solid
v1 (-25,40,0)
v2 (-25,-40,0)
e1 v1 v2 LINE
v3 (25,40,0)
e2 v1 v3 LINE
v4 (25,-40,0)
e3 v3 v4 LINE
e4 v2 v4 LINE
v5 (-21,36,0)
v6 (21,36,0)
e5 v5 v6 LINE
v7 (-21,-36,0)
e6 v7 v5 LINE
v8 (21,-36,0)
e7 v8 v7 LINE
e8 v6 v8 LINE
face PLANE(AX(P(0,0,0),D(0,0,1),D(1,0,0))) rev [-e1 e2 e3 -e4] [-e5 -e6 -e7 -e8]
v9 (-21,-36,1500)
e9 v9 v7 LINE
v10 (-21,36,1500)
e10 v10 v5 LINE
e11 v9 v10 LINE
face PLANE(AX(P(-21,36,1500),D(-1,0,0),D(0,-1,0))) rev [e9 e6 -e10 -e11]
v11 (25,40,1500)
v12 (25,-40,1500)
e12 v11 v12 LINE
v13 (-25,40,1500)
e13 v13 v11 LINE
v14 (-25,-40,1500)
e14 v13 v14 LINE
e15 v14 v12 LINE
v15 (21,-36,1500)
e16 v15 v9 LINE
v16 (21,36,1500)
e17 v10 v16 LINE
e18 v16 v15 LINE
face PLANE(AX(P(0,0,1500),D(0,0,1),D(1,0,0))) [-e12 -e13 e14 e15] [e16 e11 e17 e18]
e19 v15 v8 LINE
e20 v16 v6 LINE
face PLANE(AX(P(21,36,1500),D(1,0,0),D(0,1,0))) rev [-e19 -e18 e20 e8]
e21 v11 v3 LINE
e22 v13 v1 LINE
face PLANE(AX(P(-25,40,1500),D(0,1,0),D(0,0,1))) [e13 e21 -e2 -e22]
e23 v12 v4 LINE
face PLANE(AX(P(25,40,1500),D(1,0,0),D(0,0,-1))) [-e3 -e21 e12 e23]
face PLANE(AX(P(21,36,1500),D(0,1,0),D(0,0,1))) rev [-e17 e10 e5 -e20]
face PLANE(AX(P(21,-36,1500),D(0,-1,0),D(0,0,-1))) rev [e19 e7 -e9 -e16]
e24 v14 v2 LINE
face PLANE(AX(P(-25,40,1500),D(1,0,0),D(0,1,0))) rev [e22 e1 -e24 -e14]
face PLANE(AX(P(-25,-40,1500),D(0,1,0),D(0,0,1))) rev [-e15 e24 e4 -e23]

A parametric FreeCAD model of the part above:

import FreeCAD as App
import Part
import Sketcher
from FreeCAD import Vector

doc = App.newDocument("Part")
body = doc.addObject("PartDesign::Body", "Body")

sketch1 = body.newObject("Sketcher::SketchObject", "Sketch")
sketch1.AttachmentSupport = (doc.getObject("XY_Plane"), [""])
sketch1.MapMode = "FlatFace"
sketch1.addGeometry([
    Part.LineSegment(Vector(-25, 40, 0), Vector(-25, -40, 0)),
    Part.LineSegment(Vector(-25, -40, 0), Vector(25, -40, 0)),
    Part.LineSegment(Vector(25, -40, 0), Vector(25, 40, 0)),
    Part.LineSegment(Vector(25, 40, 0), Vector(-25, 40, 0)),
], False)
sketch1.addConstraint([
    Sketcher.Constraint("Coincident", 0, 2, 1, 1),
    Sketcher.Constraint("Coincident", 1, 2, 2, 1),
    Sketcher.Constraint("Coincident", 2, 2, 3, 1),
    Sketcher.Constraint("Coincident", 3, 2, 0, 1),
    Sketcher.Constraint("Vertical", 0),
    Sketcher.Constraint("Horizontal", 1),
    Sketcher.Constraint("Vertical", 2),
    Sketcher.Constraint("Horizontal", 3),
    Sketcher.Constraint("Symmetric", 0, 2, 2, 2, -1, 1),
    Sketcher.Constraint("DistanceX", 1, 1, 1, 2, 50.0),
    Sketcher.Constraint("DistanceY", 0, 2, 0, 1, 80.0),
])
pad1 = body.newObject("PartDesign::Pad", "Pad")
pad1.Profile = sketch1
pad1.Length = 1500

sketch2 = body.newObject("Sketcher::SketchObject", "Sketch001")
sketch2.AttachmentSupport = (doc.getObject("XY_Plane"), [""])
sketch2.MapMode = "FlatFace"
sketch2.addGeometry([
    Part.LineSegment(Vector(21, 36, 0), Vector(21, -36, 0)),
    Part.LineSegment(Vector(21, -36, 0), Vector(-21, -36, 0)),
    Part.LineSegment(Vector(-21, -36, 0), Vector(-21, 36, 0)),
    Part.LineSegment(Vector(-21, 36, 0), Vector(21, 36, 0)),
], False)
sketch2.addConstraint([
    Sketcher.Constraint("Coincident", 0, 2, 1, 1),
    Sketcher.Constraint("Coincident", 1, 2, 2, 1),
    Sketcher.Constraint("Coincident", 2, 2, 3, 1),
    Sketcher.Constraint("Coincident", 3, 2, 0, 1),
    Sketcher.Constraint("Vertical", 0),
    Sketcher.Constraint("Horizontal", 1),
    Sketcher.Constraint("Vertical", 2),
    Sketcher.Constraint("Horizontal", 3),
    Sketcher.Constraint("Symmetric", 0, 2, 2, 2, -1, 1),
    Sketcher.Constraint("DistanceX", 1, 2, 1, 1, 42.0),
    Sketcher.Constraint("DistanceY", 0, 2, 0, 1, 72.0),
])
pocket1 = body.newObject("PartDesign::Pocket", "Pocket")
pocket1.Profile = sketch2
pocket1.Length = 1500
pocket1.Reversed = True

doc.recompute()
